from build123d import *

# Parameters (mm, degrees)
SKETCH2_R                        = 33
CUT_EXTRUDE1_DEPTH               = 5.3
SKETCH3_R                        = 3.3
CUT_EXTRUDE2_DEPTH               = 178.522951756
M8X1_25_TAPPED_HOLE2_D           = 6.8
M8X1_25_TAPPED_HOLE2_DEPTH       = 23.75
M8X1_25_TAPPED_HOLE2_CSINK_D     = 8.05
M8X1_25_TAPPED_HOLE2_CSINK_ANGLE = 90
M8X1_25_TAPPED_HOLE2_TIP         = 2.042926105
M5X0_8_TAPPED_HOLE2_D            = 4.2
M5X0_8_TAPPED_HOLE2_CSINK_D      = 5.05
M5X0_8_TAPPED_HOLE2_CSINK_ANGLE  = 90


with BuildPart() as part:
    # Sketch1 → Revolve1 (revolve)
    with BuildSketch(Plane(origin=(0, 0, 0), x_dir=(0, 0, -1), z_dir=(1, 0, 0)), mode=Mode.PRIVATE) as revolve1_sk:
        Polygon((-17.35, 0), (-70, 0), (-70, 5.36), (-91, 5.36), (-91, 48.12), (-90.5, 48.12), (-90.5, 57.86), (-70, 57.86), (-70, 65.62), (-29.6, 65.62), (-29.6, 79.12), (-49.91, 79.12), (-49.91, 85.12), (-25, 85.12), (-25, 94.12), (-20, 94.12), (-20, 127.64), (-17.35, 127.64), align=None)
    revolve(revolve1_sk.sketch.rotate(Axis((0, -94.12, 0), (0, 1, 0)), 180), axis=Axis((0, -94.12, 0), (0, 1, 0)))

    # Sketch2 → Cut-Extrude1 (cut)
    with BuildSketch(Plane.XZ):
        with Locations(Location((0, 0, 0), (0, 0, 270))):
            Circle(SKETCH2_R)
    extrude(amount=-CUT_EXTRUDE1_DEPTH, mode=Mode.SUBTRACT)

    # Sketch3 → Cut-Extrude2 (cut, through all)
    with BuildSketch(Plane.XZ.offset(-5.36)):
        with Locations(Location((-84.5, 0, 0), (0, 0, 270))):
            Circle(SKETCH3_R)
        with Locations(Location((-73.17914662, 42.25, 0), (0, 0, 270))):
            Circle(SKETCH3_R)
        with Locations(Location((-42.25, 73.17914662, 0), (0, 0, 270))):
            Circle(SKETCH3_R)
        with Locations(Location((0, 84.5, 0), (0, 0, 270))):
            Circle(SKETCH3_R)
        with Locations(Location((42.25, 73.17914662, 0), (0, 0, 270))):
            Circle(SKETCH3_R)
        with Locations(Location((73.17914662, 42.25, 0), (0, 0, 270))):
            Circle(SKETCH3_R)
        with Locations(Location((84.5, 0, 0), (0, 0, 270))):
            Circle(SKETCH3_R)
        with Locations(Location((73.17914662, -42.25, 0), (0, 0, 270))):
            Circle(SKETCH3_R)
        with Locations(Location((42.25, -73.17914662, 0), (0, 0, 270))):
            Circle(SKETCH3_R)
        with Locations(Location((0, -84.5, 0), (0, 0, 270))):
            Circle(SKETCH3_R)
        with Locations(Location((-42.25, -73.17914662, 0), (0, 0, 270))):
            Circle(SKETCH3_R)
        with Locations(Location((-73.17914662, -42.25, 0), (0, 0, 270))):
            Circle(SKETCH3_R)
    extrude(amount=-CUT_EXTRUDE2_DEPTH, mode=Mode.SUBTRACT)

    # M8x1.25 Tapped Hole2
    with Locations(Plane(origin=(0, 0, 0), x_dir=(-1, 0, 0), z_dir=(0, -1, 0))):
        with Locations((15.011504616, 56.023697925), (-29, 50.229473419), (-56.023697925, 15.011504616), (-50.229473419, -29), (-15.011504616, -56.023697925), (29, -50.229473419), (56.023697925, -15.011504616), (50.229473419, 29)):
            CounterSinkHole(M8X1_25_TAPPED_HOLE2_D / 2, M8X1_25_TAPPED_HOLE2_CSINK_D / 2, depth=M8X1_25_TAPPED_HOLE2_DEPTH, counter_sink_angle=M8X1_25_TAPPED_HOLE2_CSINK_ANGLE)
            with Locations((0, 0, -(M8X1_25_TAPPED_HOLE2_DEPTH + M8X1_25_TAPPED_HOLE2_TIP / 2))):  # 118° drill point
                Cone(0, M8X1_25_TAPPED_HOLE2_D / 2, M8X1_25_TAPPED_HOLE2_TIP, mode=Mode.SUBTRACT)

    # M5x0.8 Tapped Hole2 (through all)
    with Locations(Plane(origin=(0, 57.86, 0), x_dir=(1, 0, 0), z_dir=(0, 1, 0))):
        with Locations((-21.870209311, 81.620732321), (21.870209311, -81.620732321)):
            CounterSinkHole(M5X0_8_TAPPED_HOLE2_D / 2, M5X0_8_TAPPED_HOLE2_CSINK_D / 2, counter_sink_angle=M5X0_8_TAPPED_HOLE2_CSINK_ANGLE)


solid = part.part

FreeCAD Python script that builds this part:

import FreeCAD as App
import Part
import Sketcher
Q = App.Units.Quantity

doc = App.newDocument("Part")
body = doc.addObject("PartDesign::Body", "Body")

# Sketch on YZ plane
sketch1 = body.newObject("Sketcher::SketchObject", "Sketch")
sketch1.AttachmentSupport = (doc.getObject("YZ_Plane"), [""])
sketch1.MapMode = "FlatFace"
sketch1.addGeometry([
    Part.LineSegment(App.Vector(0, 70, 0), App.Vector(0, 17.4, 0)),  # 0
    Part.LineSegment(App.Vector(0, 17.4, 0), App.Vector(127.6, 17.4, 0)),  # 1
    Part.LineSegment(App.Vector(127.6, 17.4, 0), App.Vector(127.6, 20, 0)),  # 2
    Part.LineSegment(App.Vector(127.6, 20, 0), App.Vector(94.1, 20, 0)),  # 3
    Part.LineSegment(App.Vector(94.1, 20, 0), App.Vector(94.1, 25, 0)),  # 4
    Part.LineSegment(App.Vector(94.1, 25, 0), App.Vector(85.1, 25, 0)),  # 5
    Part.LineSegment(App.Vector(85.1, 25, 0), App.Vector(85.1, 49.9, 0)),  # 6
    Part.LineSegment(App.Vector(85.1, 49.9, 0), App.Vector(79.1, 49.9, 0)),  # 7
    Part.LineSegment(App.Vector(79.1, 49.9, 0), App.Vector(79.1, 29.6, 0)),  # 8
    Part.LineSegment(App.Vector(79.1, 29.6, 0), App.Vector(65.6, 29.6, 0)),  # 9
    Part.LineSegment(App.Vector(65.6, 29.6, 0), App.Vector(65.6, 70, 0)),  # 10
    Part.LineSegment(App.Vector(65.6, 70, 0), App.Vector(57.9, 70, 0)),  # 11
    Part.LineSegment(App.Vector(57.9, 70, 0), App.Vector(57.9, 90.5, 0)),  # 12
    Part.LineSegment(App.Vector(57.9, 90.5, 0), App.Vector(48.1, 90.5, 0)),  # 13
    Part.LineSegment(App.Vector(48.1, 90.5, 0), App.Vector(48.1, 91, 0)),  # 14
    Part.LineSegment(App.Vector(48.1, 91, 0), App.Vector(5.4, 91, 0)),  # 15
    Part.LineSegment(App.Vector(5.4, 91, 0), App.Vector(5.4, 70, 0)),  # 16
    Part.LineSegment(App.Vector(5.4, 70, 0), App.Vector(0, 70, 0)),  # 17
], False)
sketch1.addConstraint([
    Sketcher.Constraint("Coincident", 0, 2, 1, 1),
    Sketcher.Constraint("Coincident", 1, 2, 2, 1),
    Sketcher.Constraint("Coincident", 2, 2, 3, 1),
    Sketcher.Constraint("Coincident", 3, 2, 4, 1),
    Sketcher.Constraint("Coincident", 4, 2, 5, 1),
    Sketcher.Constraint("Coincident", 5, 2, 6, 1),
    Sketcher.Constraint("Coincident", 6, 2, 7, 1),
    Sketcher.Constraint("Coincident", 7, 2, 8, 1),
    Sketcher.Constraint("Coincident", 8, 2, 9, 1),
    Sketcher.Constraint("Coincident", 9, 2, 10, 1),
    Sketcher.Constraint("Coincident", 10, 2, 11, 1),
    Sketcher.Constraint("Coincident", 11, 2, 12, 1),
    Sketcher.Constraint("Coincident", 12, 2, 13, 1),
    Sketcher.Constraint("Coincident", 13, 2, 14, 1),
    Sketcher.Constraint("Coincident", 14, 2, 15, 1),
    Sketcher.Constraint("Coincident", 15, 2, 16, 1),
    Sketcher.Constraint("Coincident", 16, 2, 17, 1),
    Sketcher.Constraint("Coincident", 17, 2, 0, 1),
    Sketcher.Constraint("Vertical", 0),
    Sketcher.Constraint("Horizontal", 1),
    Sketcher.Constraint("Vertical", 2),
    Sketcher.Constraint("Horizontal", 3),
    Sketcher.Constraint("Vertical", 4),
    Sketcher.Constraint("Horizontal", 5),
    Sketcher.Constraint("Vertical", 6),
    Sketcher.Constraint("Horizontal", 7),
    Sketcher.Constraint("Vertical", 8),
    Sketcher.Constraint("Horizontal", 9),
    Sketcher.Constraint("Vertical", 10),
    Sketcher.Constraint("Horizontal", 11),
    Sketcher.Constraint("Vertical", 12),
    Sketcher.Constraint("Horizontal", 13),
    Sketcher.Constraint("Vertical", 14),
    Sketcher.Constraint("Horizontal", 15),
    Sketcher.Constraint("Vertical", 16),
    Sketcher.Constraint("Horizontal", 17),
    Sketcher.Constraint("PointOnObject", 0, 2, -2),
    Sketcher.Constraint("Horizontal", 11, 2, 16, 2),
    Sketcher.Constraint("DistanceX", 5, 2, 5, 1, Q("9 mm")),
    Sketcher.Constraint("DistanceX", 7, 2, 7, 1, Q("6 mm")),
    Sketcher.Constraint("DistanceY", 4, 1, 4, 2, Q("5 mm")),
    Sketcher.Constraint("DistanceY", 16, 2, 16, 1, Q("21 mm")),
    Sketcher.Constraint("DistanceX", 9, 2, 9, 1, Q("13.5 mm")),
    Sketcher.Constraint("DistanceY", 10, 1, 10, 2, Q("40.4 mm")),
    Sketcher.Constraint("DistanceY", 12, 1, 12, 2, Q("20.5 mm")),
    Sketcher.Constraint("DistanceY", -1, 1, 2, 2, Q("20 mm")),
    Sketcher.Constraint("DistanceY", -1, 1, 10, 2, Q("70 mm")),
    Sketcher.Constraint("DistanceX", 13, 2, 7, 2, Q("31 mm")),
    Sketcher.Constraint("DistanceX", 1, 1, 1, 2, Q("127.64 mm")),
    Sketcher.Constraint("DistanceX", 3, 2, 3, 1, Q("33.52 mm")),
    Sketcher.Constraint("DistanceX", 11, 2, 11, 1, Q("7.76 mm")),
    Sketcher.Constraint("DistanceX", 15, 2, 15, 1, Q("42.76 mm")),
    Sketcher.Constraint("DistanceY", 0, 2, 0, 1, Q("52.65 mm")),
    Sketcher.Constraint("DistanceY", 6, 1, 6, 2, Q("24.91 mm")),
])
revolution = body.newObject("PartDesign::Revolution", "Revolution")
revolution.Profile = sketch1
revolution.ReferenceAxis = (sketch1, ["H_Axis"])
revolution.Angle = 360

# Sketch on XZ plane
sketch2 = body.newObject("Sketcher::SketchObject", "Sketch001")
sketch2.AttachmentSupport = (doc.getObject("XZ_Plane"), [""])
sketch2.MapMode = "FlatFace"
sketch2.addGeometry(Part.Circle(App.Vector(0, 0, 0), App.Vector(0, 0, 1), 33), False)
sketch2.addConstraint([
    Sketcher.Constraint("Coincident", 0, 3, -1, 1),
    Sketcher.Constraint("Diameter", 0, Q("66 mm")),
])
pocket1 = body.newObject("PartDesign::Pocket", "Pocket")
pocket1.Profile = sketch2
pocket1.Length = 5.3

# Sketch on XZ plane
sketch3 = body.newObject("Sketcher::SketchObject", "Sketch002")
sketch3.AttachmentSupport = (doc.getObject("XZ_Plane"), [""])
sketch3.MapMode = "FlatFace"
sketch3.AttachmentOffset = App.Placement(App.Vector(0, 0, -5.36), App.Rotation())
sketch3.addGeometry([
    Part.Circle(App.Vector(-84.5, 0, 0), App.Vector(0, 0, 1), 3.3),  # 0
    Part.Circle(App.Vector(-73.2, 42.2, 0), App.Vector(0, 0, 1), 3.3),  # 1
    Part.Circle(App.Vector(-42.2, 73.2, 0), App.Vector(0, 0, 1), 3.3),  # 2
    Part.Circle(App.Vector(0, 84.5, 0), App.Vector(0, 0, 1), 3.3),  # 3
    Part.Circle(App.Vector(42.2, 73.2, 0), App.Vector(0, 0, 1), 3.3),  # 4
    Part.Circle(App.Vector(73.2, 42.2, 0), App.Vector(0, 0, 1), 3.3),  # 5
    Part.Circle(App.Vector(84.5, 0, 0), App.Vector(0, 0, 1), 3.3),  # 6
    Part.Circle(App.Vector(73.2, -42.2, 0), App.Vector(0, 0, 1), 3.3),  # 7
    Part.Circle(App.Vector(42.2, -73.2, 0), App.Vector(0, 0, 1), 3.3),  # 8
    Part.Circle(App.Vector(0, -84.5, 0), App.Vector(0, 0, 1), 3.3),  # 9
    Part.Circle(App.Vector(-42.2, -73.2, 0), App.Vector(0, 0, 1), 3.3),  # 10
    Part.Circle(App.Vector(-73.2, -42.2, 0), App.Vector(0, 0, 1), 3.3),  # 11
], False)
sketch3.addConstraint([
    Sketcher.Constraint("Equal", 0, 1),
    Sketcher.Constraint("Equal", 1, 2),
    Sketcher.Constraint("Equal", 2, 3),
    Sketcher.Constraint("Equal", 3, 4),
    Sketcher.Constraint("Equal", 4, 5),
    Sketcher.Constraint("Equal", 5, 6),
    Sketcher.Constraint("Equal", 6, 7),
    Sketcher.Constraint("Equal", 7, 8),
    Sketcher.Constraint("Equal", 8, 9),
    Sketcher.Constraint("Equal", 9, 10),
    Sketcher.Constraint("Equal", 10, 11),
    Sketcher.Constraint("Symmetric", 0, 3, 6, 3, -1, 1),
    Sketcher.Constraint("Symmetric", 1, 3, 7, 3, -1, 1),
    Sketcher.Constraint("Symmetric", 2, 3, 8, 3, -1, 1),
    Sketcher.Constraint("Symmetric", 3, 3, 9, 3, -1, 1),
    Sketcher.Constraint("Symmetric", 4, 3, 10, 3, -1, 1),
    Sketcher.Constraint("Symmetric", 5, 3, 11, 3, -1, 1),
    Sketcher.Constraint("Symmetric", 2, 3, 4, 3, -2),
    Sketcher.Constraint("Symmetric", 1, 3, 5, 3, -2),
    Sketcher.Constraint("PointOnObject", 0, 3, -1),
    Sketcher.Constraint("PointOnObject", 3, 3, -2),
    Sketcher.Constraint("Diameter", 0, Q("6.6 mm")),
    Sketcher.Constraint("DistanceX", 0, 3, -1, 1, Q("84.5 mm")),
    Sketcher.Constraint("DistanceY", -1, 1, 3, 3, Q("84.5 mm")),
    Sketcher.Constraint("DistanceX", 2, 3, 4, 3, Q("84.5 mm")),
    Sketcher.Constraint("DistanceY", 7, 3, 5, 3, Q("84.5 mm")),
    Sketcher.Constraint("DistanceX", 1, 3, -1, 1, Q("73.179147 mm")),
    Sketcher.Constraint("DistanceY", -1, 1, 2, 3, Q("73.179147 mm")),
])
pocket2 = body.newObject("PartDesign::Pocket", "Pocket001")
pocket2.Profile = sketch3
pocket2.Type = "ThroughAll"

# Sketch on XZ plane
sketch4 = body.newObject("Sketcher::SketchObject", "Sketch003")
sketch4.AttachmentSupport = (doc.getObject("XZ_Plane"), [""])
sketch4.MapMode = "FlatFace"
sketch4.addGeometry([
    Part.Circle(App.Vector(-15, -56, 0), App.Vector(0, 0, 1), 3.4),  # 0
    Part.Circle(App.Vector(29, -50.2, 0), App.Vector(0, 0, 1), 3.4),  # 1
    Part.Circle(App.Vector(56, -15, 0), App.Vector(0, 0, 1), 3.4),  # 2
    Part.Circle(App.Vector(50.2, 29, 0), App.Vector(0, 0, 1), 3.4),  # 3
    Part.Circle(App.Vector(15, 56, 0), App.Vector(0, 0, 1), 3.4),  # 4
    Part.Circle(App.Vector(-29, 50.2, 0), App.Vector(0, 0, 1), 3.4),  # 5
    Part.Circle(App.Vector(-56, 15, 0), App.Vector(0, 0, 1), 3.4),  # 6
    Part.Circle(App.Vector(-50.2, -29, 0), App.Vector(0, 0, 1), 3.4),  # 7
], False)
sketch4.addConstraint([
    Sketcher.Constraint("Equal", 0, 1),
    Sketcher.Constraint("Equal", 1, 2),
    Sketcher.Constraint("Equal", 2, 3),
    Sketcher.Constraint("Equal", 3, 4),
    Sketcher.Constraint("Equal", 4, 5),
    Sketcher.Constraint("Equal", 5, 6),
    Sketcher.Constraint("Equal", 6, 7),
    Sketcher.Constraint("Symmetric", 0, 3, 4, 3, -1, 1),
    Sketcher.Constraint("Symmetric", 1, 3, 5, 3, -1, 1),
    Sketcher.Constraint("Symmetric", 2, 3, 6, 3, -1, 1),
    Sketcher.Constraint("Symmetric", 3, 3, 7, 3, -1, 1),
    Sketcher.Constraint("Diameter", 0, Q("6.8 mm")),
    Sketcher.Constraint("DistanceX", -1, 1, 1, 3, Q("29 mm")),
    Sketcher.Constraint("DistanceY", -1, 1, 3, 3, Q("29 mm")),
    Sketcher.Constraint("DistanceY", 1, 3, 2, 3, Q("35.217969 mm")),
    Sketcher.Constraint("DistanceX", 0, 3, 3, 3, Q("65.240978 mm")),
    Sketcher.Constraint("DistanceX", 4, 3, 3, 3, Q("35.217969 mm")),
    Sketcher.Constraint("DistanceY", 1, 3, 4, 3, Q("106.253171 mm")),
    Sketcher.Constraint("DistanceY", 2, 3, 5, 3, Q("65.240978 mm")),
    Sketcher.Constraint("DistanceX", 6, 3, 3, 3, Q("106.253171 mm")),
])
doc.recompute()
hole = body.newObject("PartDesign::Hole", "Hole")
hole.Profile = sketch4
hole.ThreadType = "None"
hole.Diameter = 6.8
hole.DepthType = "Dimension"
hole.Depth = 23.75
hole.DrillPoint = "Angled"
hole.DrillPointAngle = 118
hole.HoleCutType = "Countersink"
hole.HoleCutDiameter = 8.05
hole.HoleCutCountersinkAngle = 90

# Sketch on XZ plane
sketch5 = body.newObject("Sketcher::SketchObject", "Sketch004")
sketch5.AttachmentSupport = (doc.getObject("XZ_Plane"), [""])
sketch5.MapMode = "FlatFace"
sketch5.AttachmentOffset = App.Placement(App.Vector(0, 0, -57.86), App.Rotation())
sketch5.addGeometry([
    Part.Circle(App.Vector(-21.9, -81.6, 0), App.Vector(0, 0, 1), 2.1),
    Part.Circle(App.Vector(21.9, 81.6, 0), App.Vector(0, 0, 1), 2.1),
], False)
sketch5.addConstraint([
    Sketcher.Constraint("Equal", 0, 1),
    Sketcher.Constraint("Symmetric", 0, 3, 1, 3, -1, 1),
    Sketcher.Constraint("Diameter", 0, Q("4.2 mm")),
    Sketcher.Constraint("DistanceX", 0, 3, -1, 1, Q("21.870209 mm")),
    Sketcher.Constraint("DistanceY", 0, 3, -1, 1, Q("81.620732 mm")),
])
doc.recompute()
hole2 = body.newObject("PartDesign::Hole", "Hole001")
hole2.Profile = sketch5
hole2.ThreadType = "None"
hole2.Diameter = 4.2
hole2.DepthType = "ThroughAll"
hole2.HoleCutType = "Countersink"
hole2.HoleCutDiameter = 5.05
hole2.HoleCutCountersinkAngle = 90
hole2.Reversed = True

doc.recompute()
